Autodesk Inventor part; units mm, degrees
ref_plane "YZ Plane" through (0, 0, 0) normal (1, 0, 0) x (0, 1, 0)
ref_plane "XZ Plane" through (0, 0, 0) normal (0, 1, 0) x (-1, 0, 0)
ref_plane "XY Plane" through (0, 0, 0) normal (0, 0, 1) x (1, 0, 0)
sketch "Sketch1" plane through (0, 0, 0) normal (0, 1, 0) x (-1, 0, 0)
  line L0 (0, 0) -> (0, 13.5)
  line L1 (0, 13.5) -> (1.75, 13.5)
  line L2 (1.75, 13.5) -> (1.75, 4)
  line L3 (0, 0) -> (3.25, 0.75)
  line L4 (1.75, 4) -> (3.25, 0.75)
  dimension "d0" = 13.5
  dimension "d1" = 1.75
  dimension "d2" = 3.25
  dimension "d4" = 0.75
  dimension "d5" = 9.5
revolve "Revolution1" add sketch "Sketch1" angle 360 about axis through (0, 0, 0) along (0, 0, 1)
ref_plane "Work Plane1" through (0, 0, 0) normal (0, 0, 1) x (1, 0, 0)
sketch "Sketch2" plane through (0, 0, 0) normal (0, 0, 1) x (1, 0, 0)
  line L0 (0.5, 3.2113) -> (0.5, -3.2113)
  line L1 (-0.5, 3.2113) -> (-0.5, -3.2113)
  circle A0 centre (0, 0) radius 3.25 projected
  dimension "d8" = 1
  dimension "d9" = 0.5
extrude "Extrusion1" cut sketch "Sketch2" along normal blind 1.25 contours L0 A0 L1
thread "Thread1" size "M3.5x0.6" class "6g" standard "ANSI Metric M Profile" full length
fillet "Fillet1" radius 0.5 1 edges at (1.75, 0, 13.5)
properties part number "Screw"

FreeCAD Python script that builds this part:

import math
import FreeCAD as App
import Part
import Sketcher
from FreeCAD import Vector
Q = App.Units.Quantity


def edges_at(feature, points):
    """Names of the edges that pass closest to the given points."""
    edges = feature.Shape.Edges
    near = lambda p: min(range(len(edges)), key=lambda i: edges[i].distToShape(Part.Vertex(*p))[0])
    return sorted({f"Edge{near(p) + 1}" for p in points})


def add_polygon(sketch, points):
    """Adds a closed chain of lines whose ends are joined by coincident constraints."""
    first, n = sketch.GeometryCount, len(points)
    for a, b in zip(points, points[1:] + points[:1]):
        sketch.addGeometry(Part.LineSegment(App.Vector(*a, 0), App.Vector(*b, 0)), False)
    for i in range(n):
        sketch.addConstraint(Sketcher.Constraint("Coincident", first + i, 2, first + (i + 1) % n, 1))

doc = App.newDocument("Part")
body = doc.addObject("PartDesign::Body", "Body")

# Sketch on XZ plane
sketch1 = doc.addObject("Sketcher::SketchObject", "Sketch")
body.addObject(sketch1)
sketch1.AttachmentSupport = (doc.XZ_Plane, [""])
sketch1.MapMode = "FlatFace"
add_polygon(sketch1, [(0, 13.5), (0, 0), (-3.25, 0.75), (-1.75, 4), (-1.75, 13.5)])  # lines 0-4
sketch1.addConstraint([
    Sketcher.Constraint("Vertical", 0),
    Sketcher.Constraint("Vertical", 3),
    Sketcher.Constraint("Horizontal", 4),
    Sketcher.Constraint("Coincident", 0, 2, -1, 1),
    Sketcher.Constraint("DistanceY", 0, 2, 0, 1, Q("13.5 mm")),
    Sketcher.Constraint("DistanceY", 3, 1, 3, 2, Q("9.5 mm")),
    Sketcher.Constraint("DistanceX", 4, 1, 4, 2, Q("1.75 mm")),
    Sketcher.Constraint("DistanceX", 1, 2, -1, 1, Q("3.25 mm")),
    Sketcher.Constraint("DistanceY", -1, 1, 1, 2, Q("0.75 mm")),
])
revolution = doc.addObject("PartDesign::Revolution", "Revolution")
body.addObject(revolution)
revolution.Profile = sketch1
revolution.ReferenceAxis = (sketch1, ["V_Axis"])
revolution.Angle = 360

# Sketch on XY plane
sketch2 = doc.addObject("Sketcher::SketchObject", "Sketch001")
body.addObject(sketch2)
sketch2.AttachmentSupport = (doc.XY_Plane, [""])
sketch2.MapMode = "FlatFace"
sketch2.addGeometry([
    Part.LineSegment(Vector(0.5, -3.2113, 0), Vector(0.5, 3.2113, 0)),
    Part.ArcOfCircle(Part.Circle(Vector(0, 0, 0), Vector(0, 0, 1), 3.25), math.radians(81.150095), math.radians(98.849905)),
    Part.LineSegment(Vector(-0.5, 3.2113, 0), Vector(-0.5, -3.2113, 0)),
    Part.ArcOfCircle(Part.Circle(Vector(0, 0, 0), Vector(0, 0, 1), 3.25), math.radians(-98.849905), math.radians(-81.150095)),
], False)
sketch2.addConstraint([
    Sketcher.Constraint("Coincident", 0, 2, 1, 1),
    Sketcher.Constraint("Coincident", 1, 2, 2, 1),
    Sketcher.Constraint("Coincident", 2, 2, 3, 1),
    Sketcher.Constraint("Coincident", 3, 2, 0, 1),
    Sketcher.Constraint("Vertical", 0),
    Sketcher.Constraint("Vertical", 2),
    Sketcher.Constraint("Coincident", 1, 3, -1, 1),
    Sketcher.Constraint("Coincident", 3, 3, -1, 1),
    Sketcher.Constraint("Equal", 1, 3),
    Sketcher.Constraint("Horizontal", 0, 2, 1, 2),
    Sketcher.Constraint("DistanceX", 1, 2, 0, 2, Q("1 mm")),
    Sketcher.Constraint("Radius", 1, Q("3.25 mm")),
])
pocket1 = doc.addObject("PartDesign::Pocket", "Pocket")
body.addObject(pocket1)
pocket1.Profile = sketch2
pocket1.Length = 1.25
pocket1.Reversed = True
doc.recompute()

fillet = doc.addObject("PartDesign::Fillet", "Fillet")
body.addObject(fillet)
fillet.Base = (pocket1, edges_at(pocket1, [(1.75, 0, 13.5)]))
fillet.Radius = 0.5

doc.recompute()
